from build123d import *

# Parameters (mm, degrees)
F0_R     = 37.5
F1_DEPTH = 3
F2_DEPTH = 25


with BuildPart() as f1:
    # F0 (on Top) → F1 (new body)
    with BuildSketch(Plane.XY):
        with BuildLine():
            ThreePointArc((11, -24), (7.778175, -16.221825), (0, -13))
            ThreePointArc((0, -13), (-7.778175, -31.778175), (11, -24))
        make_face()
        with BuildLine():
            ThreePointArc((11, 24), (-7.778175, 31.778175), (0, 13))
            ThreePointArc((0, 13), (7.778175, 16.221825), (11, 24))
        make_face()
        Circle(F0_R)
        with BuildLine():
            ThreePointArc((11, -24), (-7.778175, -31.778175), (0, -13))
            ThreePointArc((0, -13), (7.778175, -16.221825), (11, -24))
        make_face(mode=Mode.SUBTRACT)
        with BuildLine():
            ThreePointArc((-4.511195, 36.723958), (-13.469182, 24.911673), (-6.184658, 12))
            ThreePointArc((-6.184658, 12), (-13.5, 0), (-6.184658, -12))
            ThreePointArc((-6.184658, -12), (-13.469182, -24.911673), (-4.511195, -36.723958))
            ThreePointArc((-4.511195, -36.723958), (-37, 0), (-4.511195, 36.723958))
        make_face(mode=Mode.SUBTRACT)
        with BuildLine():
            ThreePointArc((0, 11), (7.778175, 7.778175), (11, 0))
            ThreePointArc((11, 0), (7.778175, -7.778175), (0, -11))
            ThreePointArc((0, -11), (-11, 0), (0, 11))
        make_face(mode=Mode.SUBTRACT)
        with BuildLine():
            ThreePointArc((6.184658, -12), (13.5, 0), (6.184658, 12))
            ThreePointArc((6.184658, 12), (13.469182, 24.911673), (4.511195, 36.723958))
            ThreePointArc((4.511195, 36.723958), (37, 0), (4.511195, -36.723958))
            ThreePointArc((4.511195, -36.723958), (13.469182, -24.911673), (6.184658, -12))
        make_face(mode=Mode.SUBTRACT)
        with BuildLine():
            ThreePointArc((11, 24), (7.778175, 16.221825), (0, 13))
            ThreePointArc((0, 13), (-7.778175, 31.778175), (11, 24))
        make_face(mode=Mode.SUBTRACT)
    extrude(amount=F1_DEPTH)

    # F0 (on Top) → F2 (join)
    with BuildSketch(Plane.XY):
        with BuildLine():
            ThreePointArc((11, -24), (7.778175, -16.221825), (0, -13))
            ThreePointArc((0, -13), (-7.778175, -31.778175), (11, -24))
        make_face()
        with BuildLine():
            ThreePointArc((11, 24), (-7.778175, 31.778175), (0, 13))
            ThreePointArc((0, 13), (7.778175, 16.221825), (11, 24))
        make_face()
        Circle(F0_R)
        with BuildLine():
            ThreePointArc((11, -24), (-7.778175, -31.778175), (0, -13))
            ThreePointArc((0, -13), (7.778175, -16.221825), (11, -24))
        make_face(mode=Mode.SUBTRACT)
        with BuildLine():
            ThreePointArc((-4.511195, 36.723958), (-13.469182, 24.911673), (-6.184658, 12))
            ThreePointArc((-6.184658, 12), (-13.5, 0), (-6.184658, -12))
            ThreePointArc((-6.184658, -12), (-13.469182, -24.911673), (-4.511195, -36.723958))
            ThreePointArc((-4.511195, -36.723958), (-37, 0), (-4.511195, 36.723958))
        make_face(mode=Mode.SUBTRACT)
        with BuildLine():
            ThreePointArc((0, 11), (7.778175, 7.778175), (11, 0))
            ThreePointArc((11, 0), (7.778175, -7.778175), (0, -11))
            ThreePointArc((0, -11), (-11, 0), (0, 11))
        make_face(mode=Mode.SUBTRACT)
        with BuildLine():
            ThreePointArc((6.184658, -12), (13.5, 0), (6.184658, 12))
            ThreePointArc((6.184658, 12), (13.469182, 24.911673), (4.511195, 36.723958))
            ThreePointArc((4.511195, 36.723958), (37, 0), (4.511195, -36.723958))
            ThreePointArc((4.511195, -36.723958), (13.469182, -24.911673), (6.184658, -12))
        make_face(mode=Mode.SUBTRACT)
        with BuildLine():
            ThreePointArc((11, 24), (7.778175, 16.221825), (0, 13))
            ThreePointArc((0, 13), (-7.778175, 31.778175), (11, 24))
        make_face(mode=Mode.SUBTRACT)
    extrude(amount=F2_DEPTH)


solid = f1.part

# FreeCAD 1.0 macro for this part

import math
import FreeCAD as App
import Part
import Sketcher
from FreeCAD import Vector

doc = App.newDocument("Part")
body = doc.addObject("PartDesign::Body", "Body")

sketch1 = body.newObject("Sketcher::SketchObject", "Sketch")
sketch1.AttachmentSupport = (doc.getObject("XY_Plane"), [""])
sketch1.MapMode = "FlatFace"
sketch1.addGeometry([
    Part.Circle(Vector(0, 0, 0), Vector(0, 0, 1), 38),
    Part.ArcOfCircle(Part.Circle(Vector(0, -24, 0), Vector(0, 0, 1), 11), math.radians(0), math.radians(90)),
    Part.ArcOfCircle(Part.Circle(Vector(0, -24, 0), Vector(0, 0, 1), 11), math.radians(90), math.radians(360)),
    Part.ArcOfCircle(Part.Circle(Vector(0, 0, 0), Vector(0, 0, 1), 37), math.radians(97), math.radians(263)),
    Part.ArcOfCircle(Part.Circle(Vector(0, 24, 0), Vector(0, 0, 1), 13), math.radians(110), math.radians(243)),
    Part.ArcOfCircle(Part.Circle(Vector(0, 0, 0), Vector(0, 0, 1), 13), math.radians(117), math.radians(243)),
    Part.ArcOfCircle(Part.Circle(Vector(0, -24, 0), Vector(0, 0, 1), 13), math.radians(117), math.radians(250)),
    Part.ArcOfCircle(Part.Circle(Vector(0, 24, 0), Vector(0, 0, 1), 11), math.radians(0), math.radians(270)),
    Part.ArcOfCircle(Part.Circle(Vector(0, 24, 0), Vector(0, 0, 1), 11), math.radians(-90), math.radians(0)),
    Part.ArcOfCircle(Part.Circle(Vector(0, 0, 0), Vector(0, 0, 1), 11), math.radians(90), math.radians(270)),
    Part.ArcOfCircle(Part.Circle(Vector(0, 0, 0), Vector(0, 0, 1), 11), math.radians(0), math.radians(90)),
    Part.ArcOfCircle(Part.Circle(Vector(0, 0, 0), Vector(0, 0, 1), 11), math.radians(-90), math.radians(0)),
    Part.ArcOfCircle(Part.Circle(Vector(0, -24, 0), Vector(0, 0, 1), 13), math.radians(-70), math.radians(63)),
    Part.ArcOfCircle(Part.Circle(Vector(0, 0, 0), Vector(0, 0, 1), 13), math.radians(-63), math.radians(63)),
    Part.ArcOfCircle(Part.Circle(Vector(0, 24, 0), Vector(0, 0, 1), 13), math.radians(-63), math.radians(70)),
    Part.ArcOfCircle(Part.Circle(Vector(0, 0, 0), Vector(0, 0, 1), 37), math.radians(-83), math.radians(83)),
], False)
sketch1.addConstraint([
    Sketcher.Constraint("Tangent", 1, 1, 2, 2),
    Sketcher.Constraint("Coincident", 2, 1, 1, 2),
    Sketcher.Constraint("Coincident", 3, 1, 4, 1),
    Sketcher.Constraint("Coincident", 4, 2, 5, 1),
    Sketcher.Constraint("Coincident", 5, 2, 6, 1),
    Sketcher.Constraint("Coincident", 6, 2, 3, 2),
    Sketcher.Constraint("Tangent", 7, 1, 8, 2),
    Sketcher.Constraint("Coincident", 8, 1, 7, 2),
    Sketcher.Constraint("Tangent", 9, 1, 10, 2),
    Sketcher.Constraint("Tangent", 10, 1, 11, 2),
    Sketcher.Constraint("Tangent", 11, 1, 9, 2),
    Sketcher.Constraint("Coincident", 12, 2, 13, 1),
    Sketcher.Constraint("Coincident", 13, 2, 14, 1),
    Sketcher.Constraint("Coincident", 14, 2, 15, 2),
    Sketcher.Constraint("Coincident", 15, 1, 12, 1),
    Sketcher.Constraint("Coincident", 0, 3, -1, 1),
    Sketcher.Constraint("Coincident", 3, 3, -1, 1),
    Sketcher.Constraint("Coincident", 5, 3, -1, 1),
    Sketcher.Constraint("Coincident", 9, 3, -1, 1),
    Sketcher.Constraint("Coincident", 13, 3, -1, 1),
    Sketcher.Constraint("Coincident", 15, 3, -1, 1),
    Sketcher.Constraint("Coincident", 6, 3, 1, 3),
    Sketcher.Constraint("Coincident", 7, 3, 4, 3),
    Sketcher.Constraint("Coincident", 12, 3, 1, 3),
    Sketcher.Constraint("Coincident", 14, 3, 4, 3),
    Sketcher.Constraint("Equal", 4, 5),
    Sketcher.Constraint("Equal", 5, 6),
    Sketcher.Constraint("Equal", 2, 7),
    Sketcher.Constraint("Equal", 8, 9),
    Sketcher.Constraint("Equal", 6, 12),
    Sketcher.Constraint("Equal", 12, 13),
    Sketcher.Constraint("Equal", 13, 14),
    Sketcher.Constraint("Equal", 3, 15),
    Sketcher.Constraint("Symmetric", 1, 3, 4, 3, -1, 1),
    Sketcher.Constraint("Symmetric", 1, 1, 7, 1, -1),
    Sketcher.Constraint("PointOnObject", 2, 1, -2),
    Sketcher.Constraint("PointOnObject", 8, 1, -2),
    Sketcher.Constraint("PointOnObject", 9, 1, -2),
    Sketcher.Constraint("PointOnObject", 10, 1, -1),
    Sketcher.Constraint("PointOnObject", 11, 1, -2),
    Sketcher.Constraint("Horizontal", 12, 3, 1, 1),
    Sketcher.Constraint("Diameter", 0, 75.0),
    Sketcher.Constraint("Radius", 1, 10.999999),
    Sketcher.Constraint("Radius", 3, 37.0),
    Sketcher.Constraint("Radius", 4, 13.499999),
    Sketcher.Constraint("DistanceY", 1, 3, -1, 1, 23.999999),
])
pad1 = body.newObject("PartDesign::Pad", "Pad")
pad1.Profile = sketch1
pad1.Length = 3

sketch2 = body.newObject("Sketcher::SketchObject", "Sketch001")
sketch2.AttachmentSupport = (doc.getObject("XY_Plane"), [""])
sketch2.MapMode = "FlatFace"
sketch2.addGeometry([
    Part.Circle(Vector(0, 0, 0), Vector(0, 0, 1), 38),
    Part.ArcOfCircle(Part.Circle(Vector(0, -24, 0), Vector(0, 0, 1), 11), math.radians(0), math.radians(90)),
    Part.ArcOfCircle(Part.Circle(Vector(0, -24, 0), Vector(0, 0, 1), 11), math.radians(90), math.radians(360)),
    Part.ArcOfCircle(Part.Circle(Vector(0, 0, 0), Vector(0, 0, 1), 37), math.radians(97), math.radians(263)),
    Part.ArcOfCircle(Part.Circle(Vector(0, 24, 0), Vector(0, 0, 1), 13), math.radians(110), math.radians(243)),
    Part.ArcOfCircle(Part.Circle(Vector(0, 0, 0), Vector(0, 0, 1), 13), math.radians(117), math.radians(243)),
    Part.ArcOfCircle(Part.Circle(Vector(0, -24, 0), Vector(0, 0, 1), 13), math.radians(117), math.radians(250)),
    Part.ArcOfCircle(Part.Circle(Vector(0, 24, 0), Vector(0, 0, 1), 11), math.radians(0), math.radians(270)),
    Part.ArcOfCircle(Part.Circle(Vector(0, 24, 0), Vector(0, 0, 1), 11), math.radians(-90), math.radians(0)),
    Part.ArcOfCircle(Part.Circle(Vector(0, 0, 0), Vector(0, 0, 1), 11), math.radians(90), math.radians(270)),
    Part.ArcOfCircle(Part.Circle(Vector(0, 0, 0), Vector(0, 0, 1), 11), math.radians(0), math.radians(90)),
    Part.ArcOfCircle(Part.Circle(Vector(0, 0, 0), Vector(0, 0, 1), 11), math.radians(-90), math.radians(0)),
    Part.ArcOfCircle(Part.Circle(Vector(0, -24, 0), Vector(0, 0, 1), 13), math.radians(-70), math.radians(63)),
    Part.ArcOfCircle(Part.Circle(Vector(0, 0, 0), Vector(0, 0, 1), 13), math.radians(-63), math.radians(63)),
    Part.ArcOfCircle(Part.Circle(Vector(0, 24, 0), Vector(0, 0, 1), 13), math.radians(-63), math.radians(70)),
    Part.ArcOfCircle(Part.Circle(Vector(0, 0, 0), Vector(0, 0, 1), 37), math.radians(-83), math.radians(83)),
], False)
sketch2.addConstraint([
    Sketcher.Constraint("Tangent", 1, 1, 2, 2),
    Sketcher.Constraint("Coincident", 2, 1, 1, 2),
    Sketcher.Constraint("Coincident", 3, 1, 4, 1),
    Sketcher.Constraint("Coincident", 4, 2, 5, 1),
    Sketcher.Constraint("Coincident", 5, 2, 6, 1),
    Sketcher.Constraint("Coincident", 6, 2, 3, 2),
    Sketcher.Constraint("Tangent", 7, 1, 8, 2),
    Sketcher.Constraint("Coincident", 8, 1, 7, 2),
    Sketcher.Constraint("Tangent", 9, 1, 10, 2),
    Sketcher.Constraint("Tangent", 10, 1, 11, 2),
    Sketcher.Constraint("Tangent", 11, 1, 9, 2),
    Sketcher.Constraint("Coincident", 12, 2, 13, 1),
    Sketcher.Constraint("Coincident", 13, 2, 14, 1),
    Sketcher.Constraint("Coincident", 14, 2, 15, 2),
    Sketcher.Constraint("Coincident", 15, 1, 12, 1),
    Sketcher.Constraint("Coincident", 0, 3, -1, 1),
    Sketcher.Constraint("Coincident", 3, 3, -1, 1),
    Sketcher.Constraint("Coincident", 5, 3, -1, 1),
    Sketcher.Constraint("Coincident", 9, 3, -1, 1),
    Sketcher.Constraint("Coincident", 13, 3, -1, 1),
    Sketcher.Constraint("Coincident", 15, 3, -1, 1),
    Sketcher.Constraint("Coincident", 6, 3, 1, 3),
    Sketcher.Constraint("Coincident", 7, 3, 4, 3),
    Sketcher.Constraint("Coincident", 12, 3, 1, 3),
    Sketcher.Constraint("Coincident", 14, 3, 4, 3),
    Sketcher.Constraint("Equal", 4, 5),
    Sketcher.Constraint("Equal", 5, 6),
    Sketcher.Constraint("Equal", 2, 7),
    Sketcher.Constraint("Equal", 8, 9),
    Sketcher.Constraint("Equal", 6, 12),
    Sketcher.Constraint("Equal", 12, 13),
    Sketcher.Constraint("Equal", 13, 14),
    Sketcher.Constraint("Equal", 3, 15),
    Sketcher.Constraint("Symmetric", 1, 3, 4, 3, -1, 1),
    Sketcher.Constraint("Symmetric", 1, 1, 7, 1, -1),
    Sketcher.Constraint("PointOnObject", 2, 1, -2),
    Sketcher.Constraint("PointOnObject", 8, 1, -2),
    Sketcher.Constraint("PointOnObject", 9, 1, -2),
    Sketcher.Constraint("PointOnObject", 10, 1, -1),
    Sketcher.Constraint("PointOnObject", 11, 1, -2),
    Sketcher.Constraint("Horizontal", 12, 3, 1, 1),
    Sketcher.Constraint("Diameter", 0, 75.0),
    Sketcher.Constraint("Radius", 1, 10.999999),
    Sketcher.Constraint("Radius", 3, 37.0),
    Sketcher.Constraint("Radius", 4, 13.499999),
    Sketcher.Constraint("DistanceY", 1, 3, -1, 1, 23.999999),
])
pad2 = body.newObject("PartDesign::Pad", "Pad001")
pad2.Profile = sketch2
pad2.Length = 25

doc.recompute()
